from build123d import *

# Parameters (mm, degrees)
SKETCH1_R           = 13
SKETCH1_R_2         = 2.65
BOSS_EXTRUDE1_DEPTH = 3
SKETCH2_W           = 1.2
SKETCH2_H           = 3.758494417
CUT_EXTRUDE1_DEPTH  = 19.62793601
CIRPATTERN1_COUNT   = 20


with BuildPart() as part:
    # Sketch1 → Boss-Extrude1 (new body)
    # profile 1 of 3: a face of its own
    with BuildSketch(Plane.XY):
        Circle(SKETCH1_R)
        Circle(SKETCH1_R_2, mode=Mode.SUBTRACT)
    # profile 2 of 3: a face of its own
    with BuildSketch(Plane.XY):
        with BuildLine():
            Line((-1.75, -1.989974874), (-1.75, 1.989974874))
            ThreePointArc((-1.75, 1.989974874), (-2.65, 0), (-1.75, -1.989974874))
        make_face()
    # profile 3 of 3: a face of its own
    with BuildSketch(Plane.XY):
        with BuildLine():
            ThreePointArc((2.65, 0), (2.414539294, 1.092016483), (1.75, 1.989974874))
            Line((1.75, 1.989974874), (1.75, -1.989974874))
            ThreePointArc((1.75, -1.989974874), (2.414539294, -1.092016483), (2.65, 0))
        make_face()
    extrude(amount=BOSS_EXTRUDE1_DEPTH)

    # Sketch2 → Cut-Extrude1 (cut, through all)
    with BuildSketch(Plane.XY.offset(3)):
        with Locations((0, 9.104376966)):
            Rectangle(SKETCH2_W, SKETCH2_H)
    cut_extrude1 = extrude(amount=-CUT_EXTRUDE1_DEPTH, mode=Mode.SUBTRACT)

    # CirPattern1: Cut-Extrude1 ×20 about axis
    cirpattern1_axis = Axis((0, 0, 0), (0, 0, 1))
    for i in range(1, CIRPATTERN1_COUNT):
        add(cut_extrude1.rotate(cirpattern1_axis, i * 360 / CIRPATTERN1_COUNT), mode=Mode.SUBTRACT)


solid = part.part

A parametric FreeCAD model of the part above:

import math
import FreeCAD as App
import Part
import Sketcher
from FreeCAD import Vector


def add_polygon(sketch, points):
    """Adds a closed chain of lines whose ends are joined by coincident constraints."""
    first, n = sketch.GeometryCount, len(points)
    for a, b in zip(points, points[1:] + points[:1]):
        sketch.addGeometry(Part.LineSegment(App.Vector(*a, 0), App.Vector(*b, 0)), False)
    for i in range(n):
        sketch.addConstraint(Sketcher.Constraint("Coincident", first + i, 2, first + (i + 1) % n, 1))

doc = App.newDocument("Part")
body = doc.addObject("PartDesign::Body", "Body")

# Sketch on XY plane
sketch1 = body.newObject("Sketcher::SketchObject", "Sketch")
sketch1.AttachmentSupport = (doc.getObject("XY_Plane"), [""])
sketch1.MapMode = "FlatFace"
sketch1.addGeometry([
    Part.Circle(Vector(0, 0, 0), Vector(0, 0, 1), 13),  # 0
    Part.ArcOfCircle(Part.Circle(Vector(0, 0, 0), Vector(0, 0, 1), 2.65), math.radians(48.671341), math.radians(131.328659)),  # 1
    Part.LineSegment(Vector(1.75, 1.989975, 0), Vector(1.75, -1.989975, 0)),  # 2
    Part.ArcOfCircle(Part.Circle(Vector(0, 0, 0), Vector(0, 0, 1), 2.65), math.radians(-131.328659), math.radians(-48.671341)),  # 3
    Part.LineSegment(Vector(-1.75, -1.989975, 0), Vector(-1.75, 1.989975, 0)),  # 4
], False)
sketch1.addConstraint([
    Sketcher.Constraint("Coincident", 1, 1, 2, 1),
    Sketcher.Constraint("Coincident", 2, 2, 3, 2),
    Sketcher.Constraint("Coincident", 3, 1, 4, 1),
    Sketcher.Constraint("Coincident", 4, 2, 1, 2),
    Sketcher.Constraint("Vertical", 2),
    Sketcher.Constraint("Vertical", 4),
    Sketcher.Constraint("Coincident", 0, 3, -1, 1),
    Sketcher.Constraint("Coincident", 1, 3, -1, 1),
    Sketcher.Constraint("Coincident", 3, 3, -1, 1),
    Sketcher.Constraint("Equal", 1, 3),
    Sketcher.Constraint("Horizontal", 2, 2, 3, 1),
    Sketcher.Constraint("Diameter", 0, 26.0),
    Sketcher.Constraint("Radius", 1, 2.65),
    Sketcher.Constraint("DistanceX", 3, 1, 2, 2, 3.5),
])
pad1 = body.newObject("PartDesign::Pad", "Pad")
pad1.Profile = sketch1
pad1.Length = 3

# Sketch on XY plane
sketch2 = body.newObject("Sketcher::SketchObject", "Sketch001")
sketch2.AttachmentSupport = (doc.getObject("XY_Plane"), [""])
sketch2.MapMode = "FlatFace"
sketch2.AttachmentOffset = App.Placement(Vector(0, 0, 3), App.Rotation())
add_polygon(sketch2, [(-0.6, 10.983624), (-0.6, 7.22513), (0.6, 7.22513), (0.6, 10.983624)])  # lines 0-3
sketch2.addConstraint([
    Sketcher.Constraint("Vertical", 0),
    Sketcher.Constraint("Horizontal", 1),
    Sketcher.Constraint("Vertical", 2),
    Sketcher.Constraint("Horizontal", 3),
    Sketcher.Constraint("DistanceX", 1, 1, 1, 2, 1.2),
    Sketcher.Constraint("DistanceX", 0, 2, -1, 1, 0.6),
    Sketcher.Constraint("DistanceY", 0, 2, 0, 1, 3.758494),
    Sketcher.Constraint("DistanceY", -1, 1, 0, 2, 7.22513),
])
pocket1 = body.newObject("PartDesign::Pocket", "Pocket")
pocket1.Profile = sketch2
pocket1.Type = "ThroughAll"
doc.recompute()

polarpattern = body.newObject("PartDesign::PolarPattern", "PolarPattern")
polarpattern.Originals = [pocket1]
polarpattern.Axis = (doc.getObject("Z_Axis"), [""])
polarpattern.Angle = 360
polarpattern.Occurrences = 20
body.Tip = polarpattern

doc.recompute()
